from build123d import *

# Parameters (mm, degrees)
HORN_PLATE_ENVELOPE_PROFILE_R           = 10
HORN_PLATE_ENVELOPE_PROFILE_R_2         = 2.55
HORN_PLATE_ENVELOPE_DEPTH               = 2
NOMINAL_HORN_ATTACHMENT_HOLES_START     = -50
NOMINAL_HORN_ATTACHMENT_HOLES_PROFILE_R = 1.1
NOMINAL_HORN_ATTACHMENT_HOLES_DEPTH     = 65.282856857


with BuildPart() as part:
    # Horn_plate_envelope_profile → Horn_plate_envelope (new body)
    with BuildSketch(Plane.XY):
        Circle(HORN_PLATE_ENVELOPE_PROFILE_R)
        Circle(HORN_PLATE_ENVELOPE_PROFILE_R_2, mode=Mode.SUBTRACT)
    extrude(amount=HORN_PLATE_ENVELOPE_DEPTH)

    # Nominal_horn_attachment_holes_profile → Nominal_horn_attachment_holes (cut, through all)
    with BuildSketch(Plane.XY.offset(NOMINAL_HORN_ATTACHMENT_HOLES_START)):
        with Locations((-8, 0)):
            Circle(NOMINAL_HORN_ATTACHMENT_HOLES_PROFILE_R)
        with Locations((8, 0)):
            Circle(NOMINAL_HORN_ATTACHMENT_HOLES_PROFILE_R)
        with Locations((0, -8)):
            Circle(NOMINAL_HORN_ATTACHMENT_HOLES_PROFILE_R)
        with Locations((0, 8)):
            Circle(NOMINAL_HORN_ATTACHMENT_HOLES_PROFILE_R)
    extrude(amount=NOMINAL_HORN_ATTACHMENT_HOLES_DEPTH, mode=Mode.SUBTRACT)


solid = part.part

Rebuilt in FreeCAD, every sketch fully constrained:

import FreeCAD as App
import Part
import Sketcher

V = App.Vector

doc = App.newDocument("Part")
body = doc.addObject("PartDesign::Body", "Body")

# Sketch on XY plane
sketch1 = body.newObject("Sketcher::SketchObject", "Sketch")
sketch1.AttachmentSupport = (doc.getObject("XY_Plane"), [""])
sketch1.MapMode = "FlatFace"
sketch1.addGeometry([
    Part.Circle(V(0, 0, 0), V(0, 0, 1), 10),
    Part.Circle(V(0, 0, 0), V(0, 0, 1), 2.5),
], False)
sketch1.addConstraint([
    Sketcher.Constraint("Coincident", 0, 3, -1, 1),
    Sketcher.Constraint("Coincident", 1, 3, -1, 1),
    Sketcher.Constraint("Diameter", 0, 20.0),
    Sketcher.Constraint("Diameter", 1, 5.1),
])
pad1 = body.newObject("PartDesign::Pad", "Pad")
pad1.Profile = sketch1
pad1.Length = 2

# Sketch on XY plane
sketch2 = body.newObject("Sketcher::SketchObject", "Sketch001")
sketch2.AttachmentSupport = (doc.getObject("XY_Plane"), [""])
sketch2.MapMode = "FlatFace"
sketch2.AttachmentOffset = App.Placement(V(0, 0, -50), App.Rotation())
sketch2.addGeometry([
    Part.Circle(V(-8, 0, 0), V(0, 0, 1), 1.1),
    Part.Circle(V(8, 0, 0), V(0, 0, 1), 1.1),
    Part.Circle(V(0, -8, 0), V(0, 0, 1), 1.1),
    Part.Circle(V(0, 8, 0), V(0, 0, 1), 1.1),
], False)
sketch2.addConstraint([
    Sketcher.Constraint("Equal", 0, 1),
    Sketcher.Constraint("Equal", 1, 2),
    Sketcher.Constraint("Equal", 2, 3),
    Sketcher.Constraint("Symmetric", 0, 3, 1, 3, -1, 1),
    Sketcher.Constraint("Symmetric", 2, 3, 3, 3, -1, 1),
    Sketcher.Constraint("PointOnObject", 0, 3, -1),
    Sketcher.Constraint("PointOnObject", 2, 3, -2),
    Sketcher.Constraint("Diameter", 0, 2.2),
    Sketcher.Constraint("DistanceX", 0, 3, -1, 1, 8.0),
    Sketcher.Constraint("DistanceY", 2, 3, -1, 1, 8.0),
])
pocket1 = body.newObject("PartDesign::Pocket", "Pocket")
pocket1.Profile = sketch2
pocket1.Type = "ThroughAll"
pocket1.Reversed = True

doc.recompute()
